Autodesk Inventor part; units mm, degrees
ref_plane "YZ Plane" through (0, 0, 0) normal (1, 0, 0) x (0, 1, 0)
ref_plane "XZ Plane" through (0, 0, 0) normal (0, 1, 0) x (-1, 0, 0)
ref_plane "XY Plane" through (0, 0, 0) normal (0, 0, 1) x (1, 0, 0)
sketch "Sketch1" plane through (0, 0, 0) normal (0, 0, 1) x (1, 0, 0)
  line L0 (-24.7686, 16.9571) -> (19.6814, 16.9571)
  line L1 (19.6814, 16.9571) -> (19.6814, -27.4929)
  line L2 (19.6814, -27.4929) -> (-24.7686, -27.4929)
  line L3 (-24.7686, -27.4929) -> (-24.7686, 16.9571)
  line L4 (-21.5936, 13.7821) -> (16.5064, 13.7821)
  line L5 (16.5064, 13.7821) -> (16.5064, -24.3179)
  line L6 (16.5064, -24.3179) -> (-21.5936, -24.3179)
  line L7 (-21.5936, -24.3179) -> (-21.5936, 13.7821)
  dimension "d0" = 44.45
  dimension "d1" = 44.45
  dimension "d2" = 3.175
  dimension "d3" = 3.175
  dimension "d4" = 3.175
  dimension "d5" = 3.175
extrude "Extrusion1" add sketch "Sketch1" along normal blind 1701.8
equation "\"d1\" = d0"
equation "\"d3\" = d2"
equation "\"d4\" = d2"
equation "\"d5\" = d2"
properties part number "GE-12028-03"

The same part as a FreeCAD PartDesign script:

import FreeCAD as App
import Part
import Sketcher

V = App.Vector
Q = App.Units.Quantity

doc = App.newDocument("Part")
params = doc.addObject("Spreadsheet::Sheet", "Params")
for row, (alias, value) in enumerate([
    ("sketch1_width", "1.75 in"),
    ("sketch1_width2", "1.5 in"),
    ("pad1_length", "67 in"),
], start=1):
    params.set(f"A{row}", alias)
    params.set(f"B{row}", "=" + value)
    params.setAlias(f"B{row}", alias)

body = doc.addObject("PartDesign::Body", "Body")

# Sketch on XY plane
sketch1 = doc.addObject("Sketcher::SketchObject", "Sketch")
body.addObject(sketch1)
sketch1.AttachmentSupport = (doc.XY_Plane, [""])
sketch1.MapMode = "FlatFace"
sketch1.addGeometry([
    Part.LineSegment(V(19.6814, 16.9571, 0), V(-24.7686, 16.9571, 0)),  # 0
    Part.LineSegment(V(-24.7686, 16.9571, 0), V(-24.7686, -27.4929, 0)),  # 1
    Part.LineSegment(V(-24.7686, -27.4929, 0), V(19.6814, -27.4929, 0)),  # 2
    Part.LineSegment(V(19.6814, -27.4929, 0), V(19.6814, 16.9571, 0)),  # 3
    Part.LineSegment(V(-21.5936, -24.3179, 0), V(-21.5936, 13.7821, 0)),  # 4
    Part.LineSegment(V(-21.5936, 13.7821, 0), V(16.5064, 13.7821, 0)),  # 5
    Part.LineSegment(V(16.5064, 13.7821, 0), V(16.5064, -24.3179, 0)),  # 6
    Part.LineSegment(V(16.5064, -24.3179, 0), V(-21.5936, -24.3179, 0)),  # 7
], False)
sketch1.addConstraint([
    Sketcher.Constraint("Coincident", 0, 2, 1, 1),
    Sketcher.Constraint("Coincident", 1, 2, 2, 1),
    Sketcher.Constraint("Coincident", 2, 2, 3, 1),
    Sketcher.Constraint("Coincident", 3, 2, 0, 1),
    Sketcher.Constraint("Coincident", 4, 2, 5, 1),
    Sketcher.Constraint("Coincident", 5, 2, 6, 1),
    Sketcher.Constraint("Coincident", 6, 2, 7, 1),
    Sketcher.Constraint("Coincident", 7, 2, 4, 1),
    Sketcher.Constraint("Horizontal", 0),
    Sketcher.Constraint("Vertical", 1),
    Sketcher.Constraint("Horizontal", 2),
    Sketcher.Constraint("Vertical", 3),
    Sketcher.Constraint("Vertical", 4),
    Sketcher.Constraint("Horizontal", 5),
    Sketcher.Constraint("Vertical", 6),
    Sketcher.Constraint("Horizontal", 7),
    Sketcher.Constraint("Equal", 2, 1),
    Sketcher.Constraint("Equal", 7, 4),
    Sketcher.Constraint("DistanceX", 0, 2, 0, 1, Q("1.75 in")),
    Sketcher.Constraint("DistanceX", 5, 1, 5, 2, Q("1.5 in")),
    Sketcher.Constraint("DistanceX", 0, 2, 4, 2, Q("0.125 in")),
    Sketcher.Constraint("DistanceY", 4, 2, 0, 2, Q("0.125 in")),
    Sketcher.Constraint("DistanceY", -1, 1, 0, 2, Q("0.6676 in")),
    Sketcher.Constraint("DistanceX", 0, 2, -1, 1, Q("24.7686 mm")),
])
sketch1.setExpression("Constraints[18]", "Params.sketch1_width")
sketch1.setExpression("Constraints[19]", "Params.sketch1_width2")
pad1 = doc.addObject("PartDesign::Pad", "Pad")
body.addObject(pad1)
pad1.Profile = sketch1
pad1.setExpression("Length", "Params.pad1_length")

doc.recompute()
